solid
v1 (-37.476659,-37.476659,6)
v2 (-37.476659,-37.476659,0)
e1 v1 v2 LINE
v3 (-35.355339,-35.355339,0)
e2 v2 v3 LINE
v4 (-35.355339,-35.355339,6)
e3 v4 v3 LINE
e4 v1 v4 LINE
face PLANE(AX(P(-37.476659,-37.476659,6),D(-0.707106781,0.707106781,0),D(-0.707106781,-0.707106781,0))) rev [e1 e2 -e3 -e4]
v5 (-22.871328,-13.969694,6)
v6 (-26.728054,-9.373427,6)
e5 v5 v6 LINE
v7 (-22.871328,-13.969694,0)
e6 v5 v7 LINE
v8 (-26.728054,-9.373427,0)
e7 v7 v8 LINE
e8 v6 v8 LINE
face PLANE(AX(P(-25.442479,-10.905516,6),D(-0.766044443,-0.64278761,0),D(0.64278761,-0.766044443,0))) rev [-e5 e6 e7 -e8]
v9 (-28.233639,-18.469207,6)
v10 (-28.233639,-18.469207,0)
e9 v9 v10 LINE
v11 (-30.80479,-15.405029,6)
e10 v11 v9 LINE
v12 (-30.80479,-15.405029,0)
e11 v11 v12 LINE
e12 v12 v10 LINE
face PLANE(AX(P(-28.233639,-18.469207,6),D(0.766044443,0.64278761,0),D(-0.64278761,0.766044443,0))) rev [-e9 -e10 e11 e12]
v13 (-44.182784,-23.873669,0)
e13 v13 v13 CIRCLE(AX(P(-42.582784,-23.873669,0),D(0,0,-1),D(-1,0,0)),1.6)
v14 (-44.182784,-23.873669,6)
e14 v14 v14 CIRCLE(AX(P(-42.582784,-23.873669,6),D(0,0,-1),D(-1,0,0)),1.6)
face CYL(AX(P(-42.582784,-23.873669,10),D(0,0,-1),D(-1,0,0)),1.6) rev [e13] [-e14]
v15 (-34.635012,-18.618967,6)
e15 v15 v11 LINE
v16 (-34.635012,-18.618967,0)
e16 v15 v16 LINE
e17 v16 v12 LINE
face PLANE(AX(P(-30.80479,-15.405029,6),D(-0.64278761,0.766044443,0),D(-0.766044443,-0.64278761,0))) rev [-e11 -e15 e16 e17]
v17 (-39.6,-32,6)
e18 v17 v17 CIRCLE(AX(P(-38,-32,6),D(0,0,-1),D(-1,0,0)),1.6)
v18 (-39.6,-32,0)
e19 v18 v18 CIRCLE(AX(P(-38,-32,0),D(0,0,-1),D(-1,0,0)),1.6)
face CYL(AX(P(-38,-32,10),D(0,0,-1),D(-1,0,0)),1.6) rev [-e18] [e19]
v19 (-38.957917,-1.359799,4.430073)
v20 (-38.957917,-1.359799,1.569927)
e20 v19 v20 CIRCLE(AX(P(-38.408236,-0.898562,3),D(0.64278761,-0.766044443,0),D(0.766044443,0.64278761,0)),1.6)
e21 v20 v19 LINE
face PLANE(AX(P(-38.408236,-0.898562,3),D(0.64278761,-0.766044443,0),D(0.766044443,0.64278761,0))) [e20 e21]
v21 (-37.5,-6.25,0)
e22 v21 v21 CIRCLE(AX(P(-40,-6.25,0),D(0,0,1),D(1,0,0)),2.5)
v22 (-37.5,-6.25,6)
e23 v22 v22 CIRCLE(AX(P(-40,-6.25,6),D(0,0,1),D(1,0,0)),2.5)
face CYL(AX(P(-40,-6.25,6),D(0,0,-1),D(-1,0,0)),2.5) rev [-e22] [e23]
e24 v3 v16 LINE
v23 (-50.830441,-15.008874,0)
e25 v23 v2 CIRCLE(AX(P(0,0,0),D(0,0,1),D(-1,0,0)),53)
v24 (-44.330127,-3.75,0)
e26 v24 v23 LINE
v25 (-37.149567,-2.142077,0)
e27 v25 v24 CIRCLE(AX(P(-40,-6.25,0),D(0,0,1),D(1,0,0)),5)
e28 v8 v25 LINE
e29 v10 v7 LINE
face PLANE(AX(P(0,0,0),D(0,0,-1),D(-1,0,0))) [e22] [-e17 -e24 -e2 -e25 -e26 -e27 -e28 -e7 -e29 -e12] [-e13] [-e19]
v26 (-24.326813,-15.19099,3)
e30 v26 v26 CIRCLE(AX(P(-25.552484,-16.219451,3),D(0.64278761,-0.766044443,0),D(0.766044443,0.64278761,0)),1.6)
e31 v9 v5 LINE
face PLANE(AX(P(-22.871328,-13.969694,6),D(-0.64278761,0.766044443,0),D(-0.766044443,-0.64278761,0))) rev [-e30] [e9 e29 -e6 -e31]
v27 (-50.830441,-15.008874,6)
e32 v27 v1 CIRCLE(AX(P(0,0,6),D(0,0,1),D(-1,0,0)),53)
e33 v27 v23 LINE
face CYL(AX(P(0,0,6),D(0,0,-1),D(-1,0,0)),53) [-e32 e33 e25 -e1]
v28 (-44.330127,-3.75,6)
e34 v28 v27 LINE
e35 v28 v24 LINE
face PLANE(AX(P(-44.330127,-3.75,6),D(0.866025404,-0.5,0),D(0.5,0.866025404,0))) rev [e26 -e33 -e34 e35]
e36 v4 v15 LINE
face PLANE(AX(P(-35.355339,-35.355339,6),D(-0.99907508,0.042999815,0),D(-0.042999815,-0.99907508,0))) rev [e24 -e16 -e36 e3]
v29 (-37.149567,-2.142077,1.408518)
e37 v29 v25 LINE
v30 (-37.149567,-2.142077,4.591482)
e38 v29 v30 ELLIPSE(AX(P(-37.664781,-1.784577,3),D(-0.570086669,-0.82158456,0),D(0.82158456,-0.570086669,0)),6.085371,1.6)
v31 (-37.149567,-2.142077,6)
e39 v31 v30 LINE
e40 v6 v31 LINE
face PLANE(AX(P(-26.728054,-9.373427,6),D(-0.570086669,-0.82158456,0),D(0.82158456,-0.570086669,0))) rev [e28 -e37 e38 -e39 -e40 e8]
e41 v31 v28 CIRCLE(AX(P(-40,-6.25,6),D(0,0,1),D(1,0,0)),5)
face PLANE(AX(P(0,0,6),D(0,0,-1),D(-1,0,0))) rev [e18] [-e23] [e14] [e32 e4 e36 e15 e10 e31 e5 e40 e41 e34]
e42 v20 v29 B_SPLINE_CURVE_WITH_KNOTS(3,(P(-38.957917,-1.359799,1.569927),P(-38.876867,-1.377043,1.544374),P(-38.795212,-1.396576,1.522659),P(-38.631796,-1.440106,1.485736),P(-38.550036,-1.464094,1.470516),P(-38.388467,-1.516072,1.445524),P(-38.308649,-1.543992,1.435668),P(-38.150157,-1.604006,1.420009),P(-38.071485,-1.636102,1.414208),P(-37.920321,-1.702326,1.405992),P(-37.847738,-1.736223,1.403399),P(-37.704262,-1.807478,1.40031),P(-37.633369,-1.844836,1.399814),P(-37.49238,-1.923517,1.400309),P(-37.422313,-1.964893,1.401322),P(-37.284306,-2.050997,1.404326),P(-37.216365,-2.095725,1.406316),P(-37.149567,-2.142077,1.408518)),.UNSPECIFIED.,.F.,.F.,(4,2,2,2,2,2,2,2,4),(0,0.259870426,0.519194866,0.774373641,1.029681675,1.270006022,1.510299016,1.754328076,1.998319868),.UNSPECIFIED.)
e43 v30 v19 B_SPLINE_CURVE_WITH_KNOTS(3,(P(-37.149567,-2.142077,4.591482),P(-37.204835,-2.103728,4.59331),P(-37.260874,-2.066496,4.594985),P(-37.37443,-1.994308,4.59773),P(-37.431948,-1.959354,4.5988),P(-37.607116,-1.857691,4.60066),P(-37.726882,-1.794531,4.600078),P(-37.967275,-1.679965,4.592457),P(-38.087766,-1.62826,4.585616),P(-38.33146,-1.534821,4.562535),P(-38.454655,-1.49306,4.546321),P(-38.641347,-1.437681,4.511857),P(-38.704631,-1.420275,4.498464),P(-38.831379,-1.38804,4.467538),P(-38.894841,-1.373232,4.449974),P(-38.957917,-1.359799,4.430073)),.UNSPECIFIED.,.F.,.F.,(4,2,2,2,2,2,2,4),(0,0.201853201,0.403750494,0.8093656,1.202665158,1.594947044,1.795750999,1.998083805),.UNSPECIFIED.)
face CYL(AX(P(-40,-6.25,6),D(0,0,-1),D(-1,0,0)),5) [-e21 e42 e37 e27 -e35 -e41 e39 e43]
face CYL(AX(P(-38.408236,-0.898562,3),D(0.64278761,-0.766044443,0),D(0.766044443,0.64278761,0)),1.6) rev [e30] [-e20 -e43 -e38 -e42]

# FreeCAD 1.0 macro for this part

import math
import FreeCAD as App
import Part
import Sketcher
from FreeCAD import Vector
Q = App.Units.Quantity

doc = App.newDocument("Part")
params = doc.addObject("Spreadsheet::Sheet", "Params")
for row, (alias, value) in enumerate([
    ("sketch1_diameter", "5 mm"),
    ("sketch1_radius", "5 mm"),
    ("sketch1_radius2", "53 mm"),
    ("sketch1_length", "3 mm"),
    ("sketch1_length2", "5 mm"),
    ("pad1_length", "6 mm"),
    ("sketch2_diameter", "3.2 mm"),
    ("pocket1_length", "10 mm"),
    ("sketch3_diameter", "3.2 mm"),
    ("pocket2_length", "20 mm"),
], start=1):
    params.set(f"A{row}", alias)
    params.set(f"B{row}", "=" + value)
    params.setAlias(f"B{row}", alias)

body = doc.addObject("PartDesign::Body", "Body")

sketch1 = body.newObject("Sketcher::SketchObject", "Sketch")
sketch1.AttachmentSupport = (doc.getObject("XY_Plane"), [""])
sketch1.MapMode = "FlatFace"
sketch1.addGeometry(Part.LineSegment(Vector(-37.5, -37.5, 0), Vector(-35.4, -35.4, 0)), False)
sketch1.addGeometry(Part.LineSegment(Vector(-35.4, -35.4, 0), Vector(-34.6, -18.6, 0)), False)
sketch1.addGeometry(Part.LineSegment(Vector(-34.6, -18.6, 0), Vector(-30.8, -15.4, 0)), False)
sketch1.addGeometry(Part.LineSegment(Vector(-30.8, -15.4, 0), Vector(-28.2, -18.5, 0)), False)
sketch1.addGeometry(Part.LineSegment(Vector(-28.2, -18.5, 0), Vector(-22.9, -14, 0)), False)
sketch1.addGeometry(Part.LineSegment(Vector(-22.9, -14, 0), Vector(-25.4, -10.9, 0)), False)
sketch1.addGeometry(Part.LineSegment(Vector(-25.4, -10.9, 0), Vector(-26.7, -9.4, 0)), False)
sketch1.addGeometry(Part.LineSegment(Vector(-26.7, -9.4, 0), Vector(-37.1, -2.1, 0)), False)
sketch1.addGeometry(Part.ArcOfCircle(Part.Circle(Vector(-40, -6.3, 0), Vector(0, 0, 1), 5), math.radians(55), math.radians(150)), False)
sketch1.addGeometry(Part.LineSegment(Vector(-44.3, -3.8, 0), Vector(-50.8, -15, 0)), False)
sketch1.addGeometry(Part.ArcOfCircle(Part.Circle(Vector(0, 0, 0), Vector(0, 0, 1), 53), math.radians(-164), math.radians(-135)), False)
sketch1.addGeometry(Part.Circle(Vector(-40, -6.2, 0), Vector(0, 0, 1), 2.5), False)
sketch1.addConstraint(Sketcher.Constraint("Coincident", 0, 2, 1, 1))
sketch1.addConstraint(Sketcher.Constraint("Coincident", 1, 2, 2, 1))
sketch1.addConstraint(Sketcher.Constraint("Coincident", 2, 2, 3, 1))
sketch1.addConstraint(Sketcher.Constraint("Coincident", 3, 2, 4, 1))
sketch1.addConstraint(Sketcher.Constraint("Coincident", 4, 2, 5, 1))
sketch1.addConstraint(Sketcher.Constraint("Coincident", 5, 2, 6, 1))
sketch1.addConstraint(Sketcher.Constraint("Coincident", 6, 2, 7, 1))
sketch1.addConstraint(Sketcher.Constraint("Tangent", 7, 2, 8, 1))
sketch1.addConstraint(Sketcher.Constraint("Tangent", 8, 2, 9, 1))
sketch1.addConstraint(Sketcher.Constraint("Coincident", 9, 2, 10, 1))
sketch1.addConstraint(Sketcher.Constraint("Coincident", 10, 2, 0, 1))
sketch1.addConstraint(Sketcher.Constraint("Coincident", 10, 3, -1, 1))
sketch1.addConstraint(Sketcher.Constraint("Coincident", 11, 3, 8, 3))
sketch1.addConstraint(Sketcher.Constraint("Perpendicular", 2, 3))
sketch1.addConstraint(Sketcher.Constraint("Perpendicular", 3, 4))
sketch1.addConstraint(Sketcher.Constraint("Perpendicular", 4, 5))
sketch1.addConstraint(Sketcher.Constraint("Parallel", 5, 6))
sketch1.addConstraint(Sketcher.Constraint("Equal", 3, 5))
sketch1.addConstraint(Sketcher.Constraint("Diameter", 11, 5.0))
sketch1.addConstraint(Sketcher.Constraint("Radius", 8, 5.0))
sketch1.addConstraint(Sketcher.Constraint("Radius", 10, 53.0))
sketch1.addConstraint(Sketcher.Constraint("Angle", 0, Q("45 deg")))
sketch1.addConstraint(Sketcher.Constraint("Angle", 2, Q("40 deg")))
sketch1.addConstraint(Sketcher.Constraint("Angle", 9, Q("-120 deg")))
sketch1.addConstraint(Sketcher.Constraint("Distance", 0, 3.0))
sketch1.addConstraint(Sketcher.Constraint("Distance", 2, 5.0))
sketch1.addConstraint(Sketcher.Constraint("Distance", 3, 4.0))
sketch1.addConstraint(Sketcher.Constraint("Distance", 4, 7.0))
sketch1.addConstraint(Sketcher.Constraint("Distance", 6, 2.0))
sketch1.addConstraint(Sketcher.Constraint("DistanceX", 8, 3, -1, 1, 40.0))
sketch1.addConstraint(Sketcher.Constraint("DistanceY", 8, 3, -1, 1, 6.25))
sketch1.addConstraint(Sketcher.Constraint("DistanceX", 0, 2, 3, 2, 7.1217))
sketch1.addConstraint(Sketcher.Constraint("Distance", 7, 12.68465))
sketch1.addConstraint(Sketcher.Constraint("DistanceX", 0, 2, -1, 1, 35.355339))
sketch1.setExpression("Constraints[18]", "Params.sketch1_diameter")
sketch1.setExpression("Constraints[19]", "Params.sketch1_radius")
sketch1.setExpression("Constraints[20]", "Params.sketch1_radius2")
sketch1.setExpression("Constraints[24]", "Params.sketch1_length")
sketch1.setExpression("Constraints[25]", "Params.sketch1_length2")
pad1 = body.newObject("PartDesign::Pad", "Pad")
pad1.Profile = sketch1
pad1.setExpression("Length", "Params.pad1_length")

sketch2 = body.newObject("Sketcher::SketchObject", "Sketch001")
sketch2.AttachmentSupport = (doc.getObject("XY_Plane"), [""])
sketch2.MapMode = "FlatFace"
sketch2.addGeometry(Part.Circle(Vector(-42.6, -23.9, 0), Vector(0, 0, 1), 1.6), False)
sketch2.addGeometry(Part.Circle(Vector(-38, -32, 0), Vector(0, 0, 1), 1.6), False)
sketch2.addConstraint(Sketcher.Constraint("Equal", 0, 1))
sketch2.addConstraint(Sketcher.Constraint("Diameter", 0, 3.2))
sketch2.addConstraint(Sketcher.Constraint("DistanceX", 1, 3, -1, 1, 38.0))
sketch2.addConstraint(Sketcher.Constraint("DistanceY", 1, 3, -1, 1, 32.0))
sketch2.addConstraint(Sketcher.Constraint("DistanceY", 0, 3, -1, 1, 23.873669))
sketch2.addConstraint(Sketcher.Constraint("DistanceX", 0, 3, -1, 1, 42.582784))
sketch2.setExpression("Constraints[1]", "Params.sketch2_diameter")
pocket1 = body.newObject("PartDesign::Pocket", "Pocket")
pocket1.Profile = sketch2
pocket1.setExpression("Length", "Params.pocket1_length")
pocket1.Reversed = True

sketch3 = body.newObject("Sketcher::SketchObject", "Sketch002")
sketch3.Placement = App.Placement(Vector(-2.57115, 3.064178, 0), App.Rotation(Vector(0.766044443, 0.64278761, 0), Vector(0, 0, 1), Vector(0.64278761, -0.766044443, 0), "ZXY"))
sketch3.addGeometry(Part.Circle(Vector(-30, 3, 0), Vector(0, 0, 1), 1.6), False)
sketch3.addConstraint(Sketcher.Constraint("Diameter", 0, 3.2))
sketch3.addConstraint(Sketcher.Constraint("DistanceX", 0, 3, -1, 1, 30.0))
sketch3.addConstraint(Sketcher.Constraint("DistanceY", -1, 1, 0, 3, 3.0))
sketch3.setExpression("Constraints[0]", "Params.sketch3_diameter")
pocket2 = body.newObject("PartDesign::Pocket", "Pocket001")
pocket2.Profile = sketch3
pocket2.setExpression("Length", "Params.pocket2_length")

doc.recompute()
